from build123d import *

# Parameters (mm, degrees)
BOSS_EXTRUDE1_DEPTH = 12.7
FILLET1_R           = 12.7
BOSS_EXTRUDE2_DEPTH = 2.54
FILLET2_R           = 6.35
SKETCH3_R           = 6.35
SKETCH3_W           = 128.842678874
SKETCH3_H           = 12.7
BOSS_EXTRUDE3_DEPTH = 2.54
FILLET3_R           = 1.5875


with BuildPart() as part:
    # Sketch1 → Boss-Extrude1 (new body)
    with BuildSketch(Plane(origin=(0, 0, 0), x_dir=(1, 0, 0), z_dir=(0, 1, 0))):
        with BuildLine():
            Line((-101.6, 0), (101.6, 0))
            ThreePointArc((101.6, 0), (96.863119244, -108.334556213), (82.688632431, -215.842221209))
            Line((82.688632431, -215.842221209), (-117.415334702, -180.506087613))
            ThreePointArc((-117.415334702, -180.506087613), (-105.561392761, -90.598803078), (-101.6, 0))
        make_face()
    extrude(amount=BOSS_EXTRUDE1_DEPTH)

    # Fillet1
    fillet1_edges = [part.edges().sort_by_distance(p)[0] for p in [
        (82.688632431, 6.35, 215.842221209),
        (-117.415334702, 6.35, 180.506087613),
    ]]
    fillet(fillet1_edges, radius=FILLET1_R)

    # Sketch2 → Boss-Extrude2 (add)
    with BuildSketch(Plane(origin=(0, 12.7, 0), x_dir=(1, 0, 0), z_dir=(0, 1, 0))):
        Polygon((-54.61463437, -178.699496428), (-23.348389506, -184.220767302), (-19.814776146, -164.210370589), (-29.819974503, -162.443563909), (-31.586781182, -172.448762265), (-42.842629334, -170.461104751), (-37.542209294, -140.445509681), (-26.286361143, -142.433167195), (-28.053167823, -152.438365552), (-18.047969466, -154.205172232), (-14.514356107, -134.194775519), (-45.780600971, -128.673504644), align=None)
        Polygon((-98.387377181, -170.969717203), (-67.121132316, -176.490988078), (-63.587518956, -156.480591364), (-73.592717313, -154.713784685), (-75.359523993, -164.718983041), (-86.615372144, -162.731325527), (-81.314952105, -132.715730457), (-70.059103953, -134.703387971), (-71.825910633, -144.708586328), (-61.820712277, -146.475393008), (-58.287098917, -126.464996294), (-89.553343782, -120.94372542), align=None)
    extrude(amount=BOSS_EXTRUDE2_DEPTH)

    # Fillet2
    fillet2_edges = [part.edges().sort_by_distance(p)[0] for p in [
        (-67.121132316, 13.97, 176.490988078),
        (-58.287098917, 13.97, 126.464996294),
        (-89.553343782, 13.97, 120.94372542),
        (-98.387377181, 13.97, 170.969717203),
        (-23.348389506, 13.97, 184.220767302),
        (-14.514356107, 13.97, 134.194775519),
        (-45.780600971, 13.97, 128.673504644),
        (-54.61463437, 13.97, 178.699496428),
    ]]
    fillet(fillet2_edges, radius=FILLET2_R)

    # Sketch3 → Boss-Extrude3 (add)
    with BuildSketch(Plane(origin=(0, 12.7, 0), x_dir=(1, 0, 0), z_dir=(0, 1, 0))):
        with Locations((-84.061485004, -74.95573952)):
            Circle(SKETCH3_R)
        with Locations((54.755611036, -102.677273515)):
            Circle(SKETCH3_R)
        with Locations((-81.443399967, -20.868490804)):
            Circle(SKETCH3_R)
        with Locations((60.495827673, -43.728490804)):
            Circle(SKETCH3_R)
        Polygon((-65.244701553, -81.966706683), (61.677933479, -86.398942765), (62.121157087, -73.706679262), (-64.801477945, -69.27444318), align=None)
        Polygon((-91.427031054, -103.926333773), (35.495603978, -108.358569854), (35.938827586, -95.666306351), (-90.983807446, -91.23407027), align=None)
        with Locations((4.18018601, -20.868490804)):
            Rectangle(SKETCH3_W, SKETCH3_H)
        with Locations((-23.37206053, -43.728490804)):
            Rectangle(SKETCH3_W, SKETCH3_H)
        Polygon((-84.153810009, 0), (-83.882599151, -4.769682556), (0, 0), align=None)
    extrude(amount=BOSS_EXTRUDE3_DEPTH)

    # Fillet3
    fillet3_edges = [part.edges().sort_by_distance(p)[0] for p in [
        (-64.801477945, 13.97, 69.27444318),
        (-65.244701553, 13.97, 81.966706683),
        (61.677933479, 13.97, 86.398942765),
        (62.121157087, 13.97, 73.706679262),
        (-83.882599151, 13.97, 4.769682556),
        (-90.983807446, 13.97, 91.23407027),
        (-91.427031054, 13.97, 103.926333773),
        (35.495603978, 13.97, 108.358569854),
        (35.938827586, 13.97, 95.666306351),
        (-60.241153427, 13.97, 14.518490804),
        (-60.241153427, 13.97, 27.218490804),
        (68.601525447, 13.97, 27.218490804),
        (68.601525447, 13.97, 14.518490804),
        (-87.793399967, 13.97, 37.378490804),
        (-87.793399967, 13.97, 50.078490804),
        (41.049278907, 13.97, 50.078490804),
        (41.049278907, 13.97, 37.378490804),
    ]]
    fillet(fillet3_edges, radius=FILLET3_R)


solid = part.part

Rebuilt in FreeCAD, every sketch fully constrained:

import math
import FreeCAD as App
import Part
import Sketcher
from FreeCAD import Vector
Q = App.Units.Quantity


def edges_at(feature, points):
    """Names of the edges that pass closest to the given points."""
    edges = feature.Shape.Edges
    near = lambda p: min(range(len(edges)), key=lambda i: edges[i].distToShape(Part.Vertex(*p))[0])
    return sorted({f"Edge{near(p) + 1}" for p in points})


def add_polygon(sketch, points):
    """Adds a closed chain of lines whose ends are joined by coincident constraints."""
    first, n = sketch.GeometryCount, len(points)
    for a, b in zip(points, points[1:] + points[:1]):
        sketch.addGeometry(Part.LineSegment(App.Vector(*a, 0), App.Vector(*b, 0)), False)
    for i in range(n):
        sketch.addConstraint(Sketcher.Constraint("Coincident", first + i, 2, first + (i + 1) % n, 1))

doc = App.newDocument("Part")
params = doc.addObject("Spreadsheet::Sheet", "Params")
for row, (alias, value) in enumerate([
    ("sketch1_width", "8 in"),
    ("pad1_length", "0.5 in"),
    ("fillet_radius", "0.5 in"),
    ("sketch2_length", "2 in"),
    ("sketch2_length2", "0.8 in"),
    ("sketch2_length3", "0.4 in"),
    ("sketch2_length4", "1.25 in"),
    ("sketch2_length5", "0.45 in"),
    ("pad2_length", "0.1 in"),
    ("fillet2_radius", "0.25 in"),
    ("sketch3_diameter", "0.5 in"),
    ("sketch3_length", "5 in"),
    ("sketch3_height", "0.5 in"),
    ("sketch3_length2", "0.5 in"),
    ("pad3_length", "0.1 in"),
    ("fillet3_radius", "0.0625 in"),
], start=1):
    params.set(f"A{row}", alias)
    params.set(f"B{row}", "=" + value)
    params.setAlias(f"B{row}", alias)

body = doc.addObject("PartDesign::Body", "Body")

# Sketch on XZ plane
sketch1 = body.newObject("Sketcher::SketchObject", "Sketch")
sketch1.AttachmentSupport = (doc.getObject("XZ_Plane"), [""])
sketch1.MapMode = "FlatFace"
sketch1.addGeometry(Part.LineSegment(Vector(102, 0, 0), Vector(-102, 0, 0)), False)
sketch1.addGeometry(Part.ArcOfCircle(Part.Circle(Vector(-1140, 0, 0), Vector(0, 0, 1), 1038), math.radians(0), math.radians(10.01)), False)
sketch1.addGeometry(Part.LineSegment(Vector(-117, 181, 0), Vector(83, 216, 0)), False)
sketch1.addGeometry(Part.ArcOfCircle(Part.Circle(Vector(-1140, 0, 0), Vector(0, 0, 1), 1241), math.radians(0), math.radians(10.01)), False)
sketch1.addConstraint(Sketcher.Constraint("Coincident", 0, 2, 1, 1))
sketch1.addConstraint(Sketcher.Constraint("Coincident", 1, 2, 2, 1))
sketch1.addConstraint(Sketcher.Constraint("Coincident", 2, 2, 3, 2))
sketch1.addConstraint(Sketcher.Constraint("Coincident", 3, 1, 0, 1))
sketch1.addConstraint(Sketcher.Constraint("Horizontal", 0))
sketch1.addConstraint(Sketcher.Constraint("Coincident", 3, 3, 1, 3))
sketch1.addConstraint(Sketcher.Constraint("PointOnObject", 1, 3, -1))
sketch1.addConstraint(Sketcher.Constraint("PointOnObject", 0, 2, -1))
sketch1.addConstraint(Sketcher.Constraint("DistanceX", 0, 2, 0, 1, Q("8 in")))
sketch1.addConstraint(Sketcher.Constraint("DistanceX", 0, 2, -1, 1, Q("4 in")))
sketch1.addConstraint(Sketcher.Constraint("Radius", 1, 1037.998028))
sketch1.addConstraint(Sketcher.Constraint("DistanceY", -1, 1, 2, 2, 215.842221))
sketch1.addConstraint(Sketcher.Constraint("Angle", 2, Q("10.014552 deg")))
sketch1.setExpression("Constraints[8]", "Params.sketch1_width")
pad1 = body.newObject("PartDesign::Pad", "Pad")
pad1.Profile = sketch1
pad1.setExpression("Length", "Params.pad1_length")
pad1.Reversed = True
doc.recompute()

fillet = body.newObject("PartDesign::Fillet", "Fillet")
fillet.Base = (pad1, edges_at(pad1, [(82.689, 6.35, 215.842), (-117.415, 6.35, 180.506)]))
fillet.setExpression("Radius", "Params.fillet_radius")

# Sketch on XZ plane
sketch2 = body.newObject("Sketcher::SketchObject", "Sketch001")
sketch2.AttachmentSupport = (doc.getObject("XZ_Plane"), [""])
sketch2.MapMode = "FlatFace"
sketch2.AttachmentOffset = App.Placement(Vector(0, 0, -0.5 * 25.4), App.Rotation())
add_polygon(sketch2, [(-55, 179), (-23, 184), (-20, 164), (-30, 162), (-32, 172), (-43, 170), (-38, 140), (-26, 142), (-28, 152), (-18, 154), (-15, 134), (-46, 129)])  # lines 0-11
add_polygon(sketch2, [(-98, 171), (-67, 176), (-64, 156), (-74, 155), (-75, 165), (-87, 163), (-81, 133), (-70, 135), (-72, 145), (-62, 146), (-58, 126), (-90, 121)])  # lines 12-23
sketch2.addConstraint(Sketcher.Constraint("Perpendicular", 0, 1))
sketch2.addConstraint(Sketcher.Constraint("Perpendicular", 1, 2))
sketch2.addConstraint(Sketcher.Constraint("Perpendicular", 2, 3))
sketch2.addConstraint(Sketcher.Constraint("Perpendicular", 3, 4))
sketch2.addConstraint(Sketcher.Constraint("Perpendicular", 4, 5))
sketch2.addConstraint(Sketcher.Constraint("Perpendicular", 5, 6))
sketch2.addConstraint(Sketcher.Constraint("Perpendicular", 6, 7))
sketch2.addConstraint(Sketcher.Constraint("Perpendicular", 7, 8))
sketch2.addConstraint(Sketcher.Constraint("Perpendicular", 8, 9))
sketch2.addConstraint(Sketcher.Constraint("Perpendicular", 9, 10))
sketch2.addConstraint(Sketcher.Constraint("Perpendicular", 10, 11))
sketch2.addConstraint(Sketcher.Constraint("Perpendicular", 11, 12))
sketch2.addConstraint(Sketcher.Constraint("Perpendicular", 12, 13))
sketch2.addConstraint(Sketcher.Constraint("Perpendicular", 13, 14))
sketch2.addConstraint(Sketcher.Constraint("Perpendicular", 14, 15))
sketch2.addConstraint(Sketcher.Constraint("Perpendicular", 15, 16))
sketch2.addConstraint(Sketcher.Constraint("Perpendicular", 16, 17))
sketch2.addConstraint(Sketcher.Constraint("Perpendicular", 17, 18))
sketch2.addConstraint(Sketcher.Constraint("Perpendicular", 18, 19))
sketch2.addConstraint(Sketcher.Constraint("Perpendicular", 19, 20))
sketch2.addConstraint(Sketcher.Constraint("Perpendicular", 20, 21))
sketch2.addConstraint(Sketcher.Constraint("Perpendicular", 21, 22))
sketch2.addConstraint(Sketcher.Constraint("Perpendicular", 22, 23))
sketch2.addConstraint(Sketcher.Constraint("Equal", 2, 3))
sketch2.addConstraint(Sketcher.Constraint("Equal", 4, 6))
sketch2.addConstraint(Sketcher.Constraint("Equal", 3, 7))
sketch2.addConstraint(Sketcher.Constraint("Equal", 7, 8))
sketch2.addConstraint(Sketcher.Constraint("Equal", 1, 9))
sketch2.addConstraint(Sketcher.Constraint("Equal", 10, 12))
sketch2.addConstraint(Sketcher.Constraint("Equal", 9, 13))
sketch2.addConstraint(Sketcher.Constraint("Equal", 8, 14))
sketch2.addConstraint(Sketcher.Constraint("Equal", 14, 15))
sketch2.addConstraint(Sketcher.Constraint("Equal", 6, 16))
sketch2.addConstraint(Sketcher.Constraint("Equal", 5, 17))
sketch2.addConstraint(Sketcher.Constraint("Equal", 16, 18))
sketch2.addConstraint(Sketcher.Constraint("Equal", 15, 19))
sketch2.addConstraint(Sketcher.Constraint("Equal", 19, 20))
sketch2.addConstraint(Sketcher.Constraint("Equal", 13, 21))
sketch2.addConstraint(Sketcher.Constraint("Distance", 11, Q("2 in")))
sketch2.addConstraint(Sketcher.Constraint("Distance", 1, Q("0.8 in")))
sketch2.addConstraint(Sketcher.Constraint("Distance", 2, Q("0.4 in")))
sketch2.addConstraint(Sketcher.Constraint("Distance", 0, Q("1.25 in")))
sketch2.addConstraint(Sketcher.Constraint("Distance", 4, Q("0.45 in")))
sketch2.addConstraint(Sketcher.Constraint("DistanceX", 10, 2, -1, 1, 45.780601))
sketch2.addConstraint(Sketcher.Constraint("DistanceX", 21, 2, -1, 1, 58.287099))
sketch2.addConstraint(Sketcher.Constraint("DistanceX", 2, 2, 1, 2, 10.005198))
sketch2.addConstraint(Sketcher.Constraint("DistanceY", -1, 1, 1, 2, 164.210371))
sketch2.addConstraint(Sketcher.Constraint("DistanceY", -1, 1, 12, 2, 176.490988))
sketch2.setExpression("Constraints[62]", "Params.sketch2_length")
sketch2.setExpression("Constraints[63]", "Params.sketch2_length2")
sketch2.setExpression("Constraints[64]", "Params.sketch2_length3")
sketch2.setExpression("Constraints[65]", "Params.sketch2_length4")
sketch2.setExpression("Constraints[66]", "Params.sketch2_length5")
pad2 = body.newObject("PartDesign::Pad", "Pad001")
pad2.Profile = sketch2
pad2.setExpression("Length", "Params.pad2_length")
pad2.Reversed = True
doc.recompute()

fillet2 = body.newObject("PartDesign::Fillet", "Fillet001")
fillet2.Base = (pad2, edges_at(pad2, [
    (-67.121, 13.97, 176.491),
    (-58.287, 13.97, 126.465),
    (-89.553, 13.97, 120.944),
    (-98.387, 13.97, 170.97),
    (-23.348, 13.97, 184.221),
    (-14.514, 13.97, 134.195),
    (-45.781, 13.97, 128.674),
    (-54.615, 13.97, 178.699),
]))
fillet2.setExpression("Radius", "Params.fillet2_radius")

# Sketch on XZ plane
sketch3 = body.newObject("Sketcher::SketchObject", "Sketch002")
sketch3.AttachmentSupport = (doc.getObject("XZ_Plane"), [""])
sketch3.MapMode = "FlatFace"
sketch3.AttachmentOffset = App.Placement(Vector(0, 0, -0.5 * 25.4), App.Rotation())
sketch3.addGeometry(Part.Circle(Vector(-84.1, 75, 0), Vector(0, 0, 1), 6.3), False)  # 0
sketch3.addGeometry(Part.Circle(Vector(54.8, 102.7, 0), Vector(0, 0, 1), 6.3), False)  # 1
sketch3.addGeometry(Part.Circle(Vector(-81.4, 20.9, 0), Vector(0, 0, 1), 6.3), False)  # 2
sketch3.addGeometry(Part.Circle(Vector(60.5, 43.7, 0), Vector(0, 0, 1), 6.3), False)  # 3
add_polygon(sketch3, [(-65.2, 82), (61.7, 86.4), (62.1, 73.7), (-64.8, 69.3)])  # lines 4-7
add_polygon(sketch3, [(-91.4, 103.9), (35.5, 108.4), (35.9, 95.7), (-91, 91.2)])  # lines 8-11
add_polygon(sketch3, [(-60.2, 14.5), (-60.2, 27.2), (68.6, 27.2), (68.6, 14.5)])  # lines 12-15
add_polygon(sketch3, [(-87.8, 37.4), (-87.8, 50.1), (41, 50.1), (41, 37.4)])  # lines 16-19
add_polygon(sketch3, [(-84.2, 0), (-83.9, 4.8), (0, 0)])  # lines 20-22
sketch3.addConstraint(Sketcher.Constraint("Vertical", 12))
sketch3.addConstraint(Sketcher.Constraint("Horizontal", 13))
sketch3.addConstraint(Sketcher.Constraint("Vertical", 14))
sketch3.addConstraint(Sketcher.Constraint("Horizontal", 15))
sketch3.addConstraint(Sketcher.Constraint("Vertical", 16))
sketch3.addConstraint(Sketcher.Constraint("Horizontal", 17))
sketch3.addConstraint(Sketcher.Constraint("Vertical", 18))
sketch3.addConstraint(Sketcher.Constraint("Horizontal", 19))
sketch3.addConstraint(Sketcher.Constraint("Horizontal", 22))
sketch3.addConstraint(Sketcher.Constraint("Coincident", 21, 2, -1, 1))
sketch3.addConstraint(Sketcher.Constraint("Equal", 0, 1))
sketch3.addConstraint(Sketcher.Constraint("Equal", 1, 2))
sketch3.addConstraint(Sketcher.Constraint("Equal", 2, 3))
sketch3.addConstraint(Sketcher.Constraint("Perpendicular", 4, 5))
sketch3.addConstraint(Sketcher.Constraint("Perpendicular", 5, 6))
sketch3.addConstraint(Sketcher.Constraint("Perpendicular", 6, 7))
sketch3.addConstraint(Sketcher.Constraint("Perpendicular", 7, 8))
sketch3.addConstraint(Sketcher.Constraint("Perpendicular", 8, 9))
sketch3.addConstraint(Sketcher.Constraint("Perpendicular", 9, 10))
sketch3.addConstraint(Sketcher.Constraint("Perpendicular", 10, 11))
sketch3.addConstraint(Sketcher.Constraint("Perpendicular", 20, 21))
sketch3.addConstraint(Sketcher.Constraint("Equal", 15, 17))
sketch3.addConstraint(Sketcher.Constraint("Equal", 14, 16))
sketch3.addConstraint(Sketcher.Constraint("Equal", 6, 8))
sketch3.addConstraint(Sketcher.Constraint("Equal", 7, 9))
sketch3.addConstraint(Sketcher.Constraint("Diameter", 0, Q("0.5 in")))
sketch3.addConstraint(Sketcher.Constraint("Distance", 4, Q("5 in")))
sketch3.addConstraint(Sketcher.Constraint("DistanceY", 12, 1, 12, 2, Q("0.5 in")))
sketch3.addConstraint(Sketcher.Constraint("Angle", 4, Q("2 deg")))
sketch3.addConstraint(Sketcher.Constraint("Distance", 5, Q("0.5 in")))
sketch3.addConstraint(Sketcher.Constraint("DistanceY", 2, 3, 3, 3, Q("0.9 in")))
sketch3.addConstraint(Sketcher.Constraint("DistanceY", 12, 2, 16, 2, Q("0.9 in")))
sketch3.addConstraint(Sketcher.Constraint("DistanceY", 2, 3, 12, 2, Q("0.25 in")))
sketch3.addConstraint(Sketcher.Constraint("DistanceX", 16, 2, 2, 3, Q("0.25 in")))
sketch3.addConstraint(Sketcher.Constraint("DistanceX", 13, 1, 13, 2, 128.842679))
sketch3.addConstraint(Sketcher.Constraint("DistanceX", 22, 2, 22, 1, 84.15381))
sketch3.addConstraint(Sketcher.Constraint("DistanceX", 2, 3, -1, 1, 81.4434))
sketch3.addConstraint(Sketcher.Constraint("DistanceX", 7, 2, -1, 1, 65.244702))
sketch3.addConstraint(Sketcher.Constraint("DistanceX", 20, 2, -1, 1, 83.882599))
sketch3.addConstraint(Sketcher.Constraint("DistanceX", 9, 2, 3, 3, 24.557))
sketch3.addConstraint(Sketcher.Constraint("DistanceY", -1, 1, 0, 3, 74.95574))
sketch3.addConstraint(Sketcher.Constraint("DistanceX", -1, 1, 1, 3, 54.755611))
sketch3.addConstraint(Sketcher.Constraint("DistanceY", -1, 1, 2, 3, 20.868491))
sketch3.addConstraint(Sketcher.Constraint("DistanceY", -1, 1, 5, 2, 73.706679))
sketch3.addConstraint(Sketcher.Constraint("DistanceY", -1, 1, 8, 2, 108.35857))
sketch3.addConstraint(Sketcher.Constraint("DistanceX", 11, 2, -1, 1, 91.427031))
sketch3.addConstraint(Sketcher.Constraint("DistanceY", 4, 2, 1, 3, 16.278331))
sketch3.addConstraint(Sketcher.Constraint("DistanceX", 0, 3, 4, 2, 145.739418))
sketch3.addConstraint(Sketcher.Constraint("DistanceX", 0, 3, 12, 2, 23.820332))
sketch3.setExpression("Constraints[44]", "Params.sketch3_diameter")
sketch3.setExpression("Constraints[45]", "Params.sketch3_length")
sketch3.setExpression("Constraints[46]", "Params.sketch3_height")
sketch3.setExpression("Constraints[48]", "Params.sketch3_length2")
pad3 = body.newObject("PartDesign::Pad", "Pad002")
pad3.Profile = sketch3
pad3.setExpression("Length", "Params.pad3_length")
pad3.Reversed = True
doc.recompute()

fillet3 = body.newObject("PartDesign::Fillet", "Fillet002")
fillet3.Base = (pad3, edges_at(pad3, [
    (-64.801, 13.97, 69.274),
    (-65.245, 13.97, 81.967),
    (61.678, 13.97, 86.399),
    (62.121, 13.97, 73.707),
    (-83.883, 13.97, 4.77),
    (-90.984, 13.97, 91.234),
    (-91.427, 13.97, 103.926),
    (35.496, 13.97, 108.359),
    (35.939, 13.97, 95.666),
    (-60.241, 13.97, 14.518),
    (-60.241, 13.97, 27.218),
    (68.602, 13.97, 27.218),
    (68.602, 13.97, 14.518),
    (-87.793, 13.97, 37.378),
    (-87.793, 13.97, 50.078),
    (41.049, 13.97, 50.078),
    (41.049, 13.97, 37.378),
]))
fillet3.setExpression("Radius", "Params.fillet3_radius")

doc.recompute()
